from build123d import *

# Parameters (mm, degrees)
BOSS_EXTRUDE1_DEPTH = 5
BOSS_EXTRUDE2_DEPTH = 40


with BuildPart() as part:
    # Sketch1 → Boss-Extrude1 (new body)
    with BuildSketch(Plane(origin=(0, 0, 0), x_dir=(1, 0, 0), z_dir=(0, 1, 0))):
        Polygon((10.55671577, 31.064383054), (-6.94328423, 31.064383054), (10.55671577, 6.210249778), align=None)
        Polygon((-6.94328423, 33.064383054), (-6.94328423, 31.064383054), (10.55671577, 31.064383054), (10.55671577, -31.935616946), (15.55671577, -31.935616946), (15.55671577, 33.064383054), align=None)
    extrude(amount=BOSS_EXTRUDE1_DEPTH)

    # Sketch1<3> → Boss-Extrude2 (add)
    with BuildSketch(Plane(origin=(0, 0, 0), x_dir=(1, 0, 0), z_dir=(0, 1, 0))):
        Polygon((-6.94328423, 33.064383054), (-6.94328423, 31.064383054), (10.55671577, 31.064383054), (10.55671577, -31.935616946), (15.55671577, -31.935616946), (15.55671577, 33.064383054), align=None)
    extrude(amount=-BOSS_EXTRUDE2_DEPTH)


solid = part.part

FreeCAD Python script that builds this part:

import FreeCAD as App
import Part
import Sketcher
from FreeCAD import Vector
Q = App.Units.Quantity

doc = App.newDocument("Part")
body = doc.addObject("PartDesign::Body", "Body")

# Sketch on XZ plane
sketch1 = body.newObject("Sketcher::SketchObject", "Sketch")
sketch1.AttachmentSupport = (doc.getObject("XZ_Plane"), [""])
sketch1.MapMode = "FlatFace"
sketch1.addGeometry([
    Part.LineSegment(Vector(-6.9, -31.1, 0), Vector(10.6, -6.2, 0)),  # 0
    Part.LineSegment(Vector(10.6, -6.2, 0), Vector(10.6, 31.9, 0)),  # 1
    Part.LineSegment(Vector(10.6, 31.9, 0), Vector(15.6, 31.9, 0)),  # 2
    Part.LineSegment(Vector(15.6, 31.9, 0), Vector(15.6, -33.1, 0)),  # 3
    Part.LineSegment(Vector(15.6, -33.1, 0), Vector(-6.9, -33.1, 0)),  # 4
    Part.LineSegment(Vector(-6.9, -33.1, 0), Vector(-6.9, -31.1, 0)),  # 5
], False)
sketch1.addConstraint([
    Sketcher.Constraint("Coincident", 0, 2, 1, 1),
    Sketcher.Constraint("Coincident", 1, 2, 2, 1),
    Sketcher.Constraint("Coincident", 2, 2, 3, 1),
    Sketcher.Constraint("Coincident", 3, 2, 4, 1),
    Sketcher.Constraint("Coincident", 4, 2, 5, 1),
    Sketcher.Constraint("Coincident", 5, 2, 0, 1),
    Sketcher.Constraint("Vertical", 1),
    Sketcher.Constraint("Horizontal", 2),
    Sketcher.Constraint("Vertical", 3),
    Sketcher.Constraint("Horizontal", 4),
    Sketcher.Constraint("Vertical", 5),
    Sketcher.Constraint("DistanceX", 2, 1, 2, 2, Q("5 mm")),
    Sketcher.Constraint("DistanceY", 3, 2, 3, 1, Q("65 mm")),
    Sketcher.Constraint("DistanceY", 5, 1, 5, 2, Q("2 mm")),
    Sketcher.Constraint("DistanceX", 4, 2, 4, 1, Q("22.5 mm")),
    Sketcher.Constraint("DistanceY", 1, 1, 1, 2, Q("38.145867 mm")),
    Sketcher.Constraint("DistanceY", 0, 2, -1, 1, Q("6.21025 mm")),
    Sketcher.Constraint("DistanceX", -1, 1, 0, 2, Q("10.556716 mm")),
])
pad1 = body.newObject("PartDesign::Pad", "Pad")
pad1.Profile = sketch1
pad1.Length = 5
pad1.Reversed = True

# Sketch on XZ plane
sketch2 = body.newObject("Sketcher::SketchObject", "Sketch001")
sketch2.AttachmentSupport = (doc.getObject("XZ_Plane"), [""])
sketch2.MapMode = "FlatFace"
sketch2.addGeometry([
    Part.LineSegment(Vector(-6.9, -33.1, 0), Vector(-6.9, -31.1, 0)),  # 0
    Part.LineSegment(Vector(-6.9, -31.1, 0), Vector(10.6, -31.1, 0)),  # 1
    Part.LineSegment(Vector(10.6, -31.1, 0), Vector(10.6, 31.9, 0)),  # 2
    Part.LineSegment(Vector(10.6, 31.9, 0), Vector(15.6, 31.9, 0)),  # 3
    Part.LineSegment(Vector(15.6, 31.9, 0), Vector(15.6, -33.1, 0)),  # 4
    Part.LineSegment(Vector(15.6, -33.1, 0), Vector(-6.9, -33.1, 0)),  # 5
], False)
sketch2.addConstraint([
    Sketcher.Constraint("Coincident", 0, 2, 1, 1),
    Sketcher.Constraint("Coincident", 1, 2, 2, 1),
    Sketcher.Constraint("Coincident", 2, 2, 3, 1),
    Sketcher.Constraint("Coincident", 3, 2, 4, 1),
    Sketcher.Constraint("Coincident", 4, 2, 5, 1),
    Sketcher.Constraint("Coincident", 5, 2, 0, 1),
    Sketcher.Constraint("Vertical", 0),
    Sketcher.Constraint("Horizontal", 1),
    Sketcher.Constraint("Vertical", 2),
    Sketcher.Constraint("Horizontal", 3),
    Sketcher.Constraint("Vertical", 4),
    Sketcher.Constraint("Horizontal", 5),
    Sketcher.Constraint("DistanceX", 3, 1, 3, 2, Q("5 mm")),
    Sketcher.Constraint("DistanceY", 0, 1, 0, 2, Q("2 mm")),
    Sketcher.Constraint("DistanceY", 2, 1, 2, 2, Q("63 mm")),
    Sketcher.Constraint("DistanceX", 1, 1, 1, 2, Q("17.5 mm")),
    Sketcher.Constraint("DistanceX", 0, 2, -1, 1, Q("6.943284 mm")),
    Sketcher.Constraint("DistanceY", 0, 2, -1, 1, Q("31.064383 mm")),
])
pad2 = body.newObject("PartDesign::Pad", "Pad001")
pad2.Profile = sketch2
pad2.Length = 40

doc.recompute()
